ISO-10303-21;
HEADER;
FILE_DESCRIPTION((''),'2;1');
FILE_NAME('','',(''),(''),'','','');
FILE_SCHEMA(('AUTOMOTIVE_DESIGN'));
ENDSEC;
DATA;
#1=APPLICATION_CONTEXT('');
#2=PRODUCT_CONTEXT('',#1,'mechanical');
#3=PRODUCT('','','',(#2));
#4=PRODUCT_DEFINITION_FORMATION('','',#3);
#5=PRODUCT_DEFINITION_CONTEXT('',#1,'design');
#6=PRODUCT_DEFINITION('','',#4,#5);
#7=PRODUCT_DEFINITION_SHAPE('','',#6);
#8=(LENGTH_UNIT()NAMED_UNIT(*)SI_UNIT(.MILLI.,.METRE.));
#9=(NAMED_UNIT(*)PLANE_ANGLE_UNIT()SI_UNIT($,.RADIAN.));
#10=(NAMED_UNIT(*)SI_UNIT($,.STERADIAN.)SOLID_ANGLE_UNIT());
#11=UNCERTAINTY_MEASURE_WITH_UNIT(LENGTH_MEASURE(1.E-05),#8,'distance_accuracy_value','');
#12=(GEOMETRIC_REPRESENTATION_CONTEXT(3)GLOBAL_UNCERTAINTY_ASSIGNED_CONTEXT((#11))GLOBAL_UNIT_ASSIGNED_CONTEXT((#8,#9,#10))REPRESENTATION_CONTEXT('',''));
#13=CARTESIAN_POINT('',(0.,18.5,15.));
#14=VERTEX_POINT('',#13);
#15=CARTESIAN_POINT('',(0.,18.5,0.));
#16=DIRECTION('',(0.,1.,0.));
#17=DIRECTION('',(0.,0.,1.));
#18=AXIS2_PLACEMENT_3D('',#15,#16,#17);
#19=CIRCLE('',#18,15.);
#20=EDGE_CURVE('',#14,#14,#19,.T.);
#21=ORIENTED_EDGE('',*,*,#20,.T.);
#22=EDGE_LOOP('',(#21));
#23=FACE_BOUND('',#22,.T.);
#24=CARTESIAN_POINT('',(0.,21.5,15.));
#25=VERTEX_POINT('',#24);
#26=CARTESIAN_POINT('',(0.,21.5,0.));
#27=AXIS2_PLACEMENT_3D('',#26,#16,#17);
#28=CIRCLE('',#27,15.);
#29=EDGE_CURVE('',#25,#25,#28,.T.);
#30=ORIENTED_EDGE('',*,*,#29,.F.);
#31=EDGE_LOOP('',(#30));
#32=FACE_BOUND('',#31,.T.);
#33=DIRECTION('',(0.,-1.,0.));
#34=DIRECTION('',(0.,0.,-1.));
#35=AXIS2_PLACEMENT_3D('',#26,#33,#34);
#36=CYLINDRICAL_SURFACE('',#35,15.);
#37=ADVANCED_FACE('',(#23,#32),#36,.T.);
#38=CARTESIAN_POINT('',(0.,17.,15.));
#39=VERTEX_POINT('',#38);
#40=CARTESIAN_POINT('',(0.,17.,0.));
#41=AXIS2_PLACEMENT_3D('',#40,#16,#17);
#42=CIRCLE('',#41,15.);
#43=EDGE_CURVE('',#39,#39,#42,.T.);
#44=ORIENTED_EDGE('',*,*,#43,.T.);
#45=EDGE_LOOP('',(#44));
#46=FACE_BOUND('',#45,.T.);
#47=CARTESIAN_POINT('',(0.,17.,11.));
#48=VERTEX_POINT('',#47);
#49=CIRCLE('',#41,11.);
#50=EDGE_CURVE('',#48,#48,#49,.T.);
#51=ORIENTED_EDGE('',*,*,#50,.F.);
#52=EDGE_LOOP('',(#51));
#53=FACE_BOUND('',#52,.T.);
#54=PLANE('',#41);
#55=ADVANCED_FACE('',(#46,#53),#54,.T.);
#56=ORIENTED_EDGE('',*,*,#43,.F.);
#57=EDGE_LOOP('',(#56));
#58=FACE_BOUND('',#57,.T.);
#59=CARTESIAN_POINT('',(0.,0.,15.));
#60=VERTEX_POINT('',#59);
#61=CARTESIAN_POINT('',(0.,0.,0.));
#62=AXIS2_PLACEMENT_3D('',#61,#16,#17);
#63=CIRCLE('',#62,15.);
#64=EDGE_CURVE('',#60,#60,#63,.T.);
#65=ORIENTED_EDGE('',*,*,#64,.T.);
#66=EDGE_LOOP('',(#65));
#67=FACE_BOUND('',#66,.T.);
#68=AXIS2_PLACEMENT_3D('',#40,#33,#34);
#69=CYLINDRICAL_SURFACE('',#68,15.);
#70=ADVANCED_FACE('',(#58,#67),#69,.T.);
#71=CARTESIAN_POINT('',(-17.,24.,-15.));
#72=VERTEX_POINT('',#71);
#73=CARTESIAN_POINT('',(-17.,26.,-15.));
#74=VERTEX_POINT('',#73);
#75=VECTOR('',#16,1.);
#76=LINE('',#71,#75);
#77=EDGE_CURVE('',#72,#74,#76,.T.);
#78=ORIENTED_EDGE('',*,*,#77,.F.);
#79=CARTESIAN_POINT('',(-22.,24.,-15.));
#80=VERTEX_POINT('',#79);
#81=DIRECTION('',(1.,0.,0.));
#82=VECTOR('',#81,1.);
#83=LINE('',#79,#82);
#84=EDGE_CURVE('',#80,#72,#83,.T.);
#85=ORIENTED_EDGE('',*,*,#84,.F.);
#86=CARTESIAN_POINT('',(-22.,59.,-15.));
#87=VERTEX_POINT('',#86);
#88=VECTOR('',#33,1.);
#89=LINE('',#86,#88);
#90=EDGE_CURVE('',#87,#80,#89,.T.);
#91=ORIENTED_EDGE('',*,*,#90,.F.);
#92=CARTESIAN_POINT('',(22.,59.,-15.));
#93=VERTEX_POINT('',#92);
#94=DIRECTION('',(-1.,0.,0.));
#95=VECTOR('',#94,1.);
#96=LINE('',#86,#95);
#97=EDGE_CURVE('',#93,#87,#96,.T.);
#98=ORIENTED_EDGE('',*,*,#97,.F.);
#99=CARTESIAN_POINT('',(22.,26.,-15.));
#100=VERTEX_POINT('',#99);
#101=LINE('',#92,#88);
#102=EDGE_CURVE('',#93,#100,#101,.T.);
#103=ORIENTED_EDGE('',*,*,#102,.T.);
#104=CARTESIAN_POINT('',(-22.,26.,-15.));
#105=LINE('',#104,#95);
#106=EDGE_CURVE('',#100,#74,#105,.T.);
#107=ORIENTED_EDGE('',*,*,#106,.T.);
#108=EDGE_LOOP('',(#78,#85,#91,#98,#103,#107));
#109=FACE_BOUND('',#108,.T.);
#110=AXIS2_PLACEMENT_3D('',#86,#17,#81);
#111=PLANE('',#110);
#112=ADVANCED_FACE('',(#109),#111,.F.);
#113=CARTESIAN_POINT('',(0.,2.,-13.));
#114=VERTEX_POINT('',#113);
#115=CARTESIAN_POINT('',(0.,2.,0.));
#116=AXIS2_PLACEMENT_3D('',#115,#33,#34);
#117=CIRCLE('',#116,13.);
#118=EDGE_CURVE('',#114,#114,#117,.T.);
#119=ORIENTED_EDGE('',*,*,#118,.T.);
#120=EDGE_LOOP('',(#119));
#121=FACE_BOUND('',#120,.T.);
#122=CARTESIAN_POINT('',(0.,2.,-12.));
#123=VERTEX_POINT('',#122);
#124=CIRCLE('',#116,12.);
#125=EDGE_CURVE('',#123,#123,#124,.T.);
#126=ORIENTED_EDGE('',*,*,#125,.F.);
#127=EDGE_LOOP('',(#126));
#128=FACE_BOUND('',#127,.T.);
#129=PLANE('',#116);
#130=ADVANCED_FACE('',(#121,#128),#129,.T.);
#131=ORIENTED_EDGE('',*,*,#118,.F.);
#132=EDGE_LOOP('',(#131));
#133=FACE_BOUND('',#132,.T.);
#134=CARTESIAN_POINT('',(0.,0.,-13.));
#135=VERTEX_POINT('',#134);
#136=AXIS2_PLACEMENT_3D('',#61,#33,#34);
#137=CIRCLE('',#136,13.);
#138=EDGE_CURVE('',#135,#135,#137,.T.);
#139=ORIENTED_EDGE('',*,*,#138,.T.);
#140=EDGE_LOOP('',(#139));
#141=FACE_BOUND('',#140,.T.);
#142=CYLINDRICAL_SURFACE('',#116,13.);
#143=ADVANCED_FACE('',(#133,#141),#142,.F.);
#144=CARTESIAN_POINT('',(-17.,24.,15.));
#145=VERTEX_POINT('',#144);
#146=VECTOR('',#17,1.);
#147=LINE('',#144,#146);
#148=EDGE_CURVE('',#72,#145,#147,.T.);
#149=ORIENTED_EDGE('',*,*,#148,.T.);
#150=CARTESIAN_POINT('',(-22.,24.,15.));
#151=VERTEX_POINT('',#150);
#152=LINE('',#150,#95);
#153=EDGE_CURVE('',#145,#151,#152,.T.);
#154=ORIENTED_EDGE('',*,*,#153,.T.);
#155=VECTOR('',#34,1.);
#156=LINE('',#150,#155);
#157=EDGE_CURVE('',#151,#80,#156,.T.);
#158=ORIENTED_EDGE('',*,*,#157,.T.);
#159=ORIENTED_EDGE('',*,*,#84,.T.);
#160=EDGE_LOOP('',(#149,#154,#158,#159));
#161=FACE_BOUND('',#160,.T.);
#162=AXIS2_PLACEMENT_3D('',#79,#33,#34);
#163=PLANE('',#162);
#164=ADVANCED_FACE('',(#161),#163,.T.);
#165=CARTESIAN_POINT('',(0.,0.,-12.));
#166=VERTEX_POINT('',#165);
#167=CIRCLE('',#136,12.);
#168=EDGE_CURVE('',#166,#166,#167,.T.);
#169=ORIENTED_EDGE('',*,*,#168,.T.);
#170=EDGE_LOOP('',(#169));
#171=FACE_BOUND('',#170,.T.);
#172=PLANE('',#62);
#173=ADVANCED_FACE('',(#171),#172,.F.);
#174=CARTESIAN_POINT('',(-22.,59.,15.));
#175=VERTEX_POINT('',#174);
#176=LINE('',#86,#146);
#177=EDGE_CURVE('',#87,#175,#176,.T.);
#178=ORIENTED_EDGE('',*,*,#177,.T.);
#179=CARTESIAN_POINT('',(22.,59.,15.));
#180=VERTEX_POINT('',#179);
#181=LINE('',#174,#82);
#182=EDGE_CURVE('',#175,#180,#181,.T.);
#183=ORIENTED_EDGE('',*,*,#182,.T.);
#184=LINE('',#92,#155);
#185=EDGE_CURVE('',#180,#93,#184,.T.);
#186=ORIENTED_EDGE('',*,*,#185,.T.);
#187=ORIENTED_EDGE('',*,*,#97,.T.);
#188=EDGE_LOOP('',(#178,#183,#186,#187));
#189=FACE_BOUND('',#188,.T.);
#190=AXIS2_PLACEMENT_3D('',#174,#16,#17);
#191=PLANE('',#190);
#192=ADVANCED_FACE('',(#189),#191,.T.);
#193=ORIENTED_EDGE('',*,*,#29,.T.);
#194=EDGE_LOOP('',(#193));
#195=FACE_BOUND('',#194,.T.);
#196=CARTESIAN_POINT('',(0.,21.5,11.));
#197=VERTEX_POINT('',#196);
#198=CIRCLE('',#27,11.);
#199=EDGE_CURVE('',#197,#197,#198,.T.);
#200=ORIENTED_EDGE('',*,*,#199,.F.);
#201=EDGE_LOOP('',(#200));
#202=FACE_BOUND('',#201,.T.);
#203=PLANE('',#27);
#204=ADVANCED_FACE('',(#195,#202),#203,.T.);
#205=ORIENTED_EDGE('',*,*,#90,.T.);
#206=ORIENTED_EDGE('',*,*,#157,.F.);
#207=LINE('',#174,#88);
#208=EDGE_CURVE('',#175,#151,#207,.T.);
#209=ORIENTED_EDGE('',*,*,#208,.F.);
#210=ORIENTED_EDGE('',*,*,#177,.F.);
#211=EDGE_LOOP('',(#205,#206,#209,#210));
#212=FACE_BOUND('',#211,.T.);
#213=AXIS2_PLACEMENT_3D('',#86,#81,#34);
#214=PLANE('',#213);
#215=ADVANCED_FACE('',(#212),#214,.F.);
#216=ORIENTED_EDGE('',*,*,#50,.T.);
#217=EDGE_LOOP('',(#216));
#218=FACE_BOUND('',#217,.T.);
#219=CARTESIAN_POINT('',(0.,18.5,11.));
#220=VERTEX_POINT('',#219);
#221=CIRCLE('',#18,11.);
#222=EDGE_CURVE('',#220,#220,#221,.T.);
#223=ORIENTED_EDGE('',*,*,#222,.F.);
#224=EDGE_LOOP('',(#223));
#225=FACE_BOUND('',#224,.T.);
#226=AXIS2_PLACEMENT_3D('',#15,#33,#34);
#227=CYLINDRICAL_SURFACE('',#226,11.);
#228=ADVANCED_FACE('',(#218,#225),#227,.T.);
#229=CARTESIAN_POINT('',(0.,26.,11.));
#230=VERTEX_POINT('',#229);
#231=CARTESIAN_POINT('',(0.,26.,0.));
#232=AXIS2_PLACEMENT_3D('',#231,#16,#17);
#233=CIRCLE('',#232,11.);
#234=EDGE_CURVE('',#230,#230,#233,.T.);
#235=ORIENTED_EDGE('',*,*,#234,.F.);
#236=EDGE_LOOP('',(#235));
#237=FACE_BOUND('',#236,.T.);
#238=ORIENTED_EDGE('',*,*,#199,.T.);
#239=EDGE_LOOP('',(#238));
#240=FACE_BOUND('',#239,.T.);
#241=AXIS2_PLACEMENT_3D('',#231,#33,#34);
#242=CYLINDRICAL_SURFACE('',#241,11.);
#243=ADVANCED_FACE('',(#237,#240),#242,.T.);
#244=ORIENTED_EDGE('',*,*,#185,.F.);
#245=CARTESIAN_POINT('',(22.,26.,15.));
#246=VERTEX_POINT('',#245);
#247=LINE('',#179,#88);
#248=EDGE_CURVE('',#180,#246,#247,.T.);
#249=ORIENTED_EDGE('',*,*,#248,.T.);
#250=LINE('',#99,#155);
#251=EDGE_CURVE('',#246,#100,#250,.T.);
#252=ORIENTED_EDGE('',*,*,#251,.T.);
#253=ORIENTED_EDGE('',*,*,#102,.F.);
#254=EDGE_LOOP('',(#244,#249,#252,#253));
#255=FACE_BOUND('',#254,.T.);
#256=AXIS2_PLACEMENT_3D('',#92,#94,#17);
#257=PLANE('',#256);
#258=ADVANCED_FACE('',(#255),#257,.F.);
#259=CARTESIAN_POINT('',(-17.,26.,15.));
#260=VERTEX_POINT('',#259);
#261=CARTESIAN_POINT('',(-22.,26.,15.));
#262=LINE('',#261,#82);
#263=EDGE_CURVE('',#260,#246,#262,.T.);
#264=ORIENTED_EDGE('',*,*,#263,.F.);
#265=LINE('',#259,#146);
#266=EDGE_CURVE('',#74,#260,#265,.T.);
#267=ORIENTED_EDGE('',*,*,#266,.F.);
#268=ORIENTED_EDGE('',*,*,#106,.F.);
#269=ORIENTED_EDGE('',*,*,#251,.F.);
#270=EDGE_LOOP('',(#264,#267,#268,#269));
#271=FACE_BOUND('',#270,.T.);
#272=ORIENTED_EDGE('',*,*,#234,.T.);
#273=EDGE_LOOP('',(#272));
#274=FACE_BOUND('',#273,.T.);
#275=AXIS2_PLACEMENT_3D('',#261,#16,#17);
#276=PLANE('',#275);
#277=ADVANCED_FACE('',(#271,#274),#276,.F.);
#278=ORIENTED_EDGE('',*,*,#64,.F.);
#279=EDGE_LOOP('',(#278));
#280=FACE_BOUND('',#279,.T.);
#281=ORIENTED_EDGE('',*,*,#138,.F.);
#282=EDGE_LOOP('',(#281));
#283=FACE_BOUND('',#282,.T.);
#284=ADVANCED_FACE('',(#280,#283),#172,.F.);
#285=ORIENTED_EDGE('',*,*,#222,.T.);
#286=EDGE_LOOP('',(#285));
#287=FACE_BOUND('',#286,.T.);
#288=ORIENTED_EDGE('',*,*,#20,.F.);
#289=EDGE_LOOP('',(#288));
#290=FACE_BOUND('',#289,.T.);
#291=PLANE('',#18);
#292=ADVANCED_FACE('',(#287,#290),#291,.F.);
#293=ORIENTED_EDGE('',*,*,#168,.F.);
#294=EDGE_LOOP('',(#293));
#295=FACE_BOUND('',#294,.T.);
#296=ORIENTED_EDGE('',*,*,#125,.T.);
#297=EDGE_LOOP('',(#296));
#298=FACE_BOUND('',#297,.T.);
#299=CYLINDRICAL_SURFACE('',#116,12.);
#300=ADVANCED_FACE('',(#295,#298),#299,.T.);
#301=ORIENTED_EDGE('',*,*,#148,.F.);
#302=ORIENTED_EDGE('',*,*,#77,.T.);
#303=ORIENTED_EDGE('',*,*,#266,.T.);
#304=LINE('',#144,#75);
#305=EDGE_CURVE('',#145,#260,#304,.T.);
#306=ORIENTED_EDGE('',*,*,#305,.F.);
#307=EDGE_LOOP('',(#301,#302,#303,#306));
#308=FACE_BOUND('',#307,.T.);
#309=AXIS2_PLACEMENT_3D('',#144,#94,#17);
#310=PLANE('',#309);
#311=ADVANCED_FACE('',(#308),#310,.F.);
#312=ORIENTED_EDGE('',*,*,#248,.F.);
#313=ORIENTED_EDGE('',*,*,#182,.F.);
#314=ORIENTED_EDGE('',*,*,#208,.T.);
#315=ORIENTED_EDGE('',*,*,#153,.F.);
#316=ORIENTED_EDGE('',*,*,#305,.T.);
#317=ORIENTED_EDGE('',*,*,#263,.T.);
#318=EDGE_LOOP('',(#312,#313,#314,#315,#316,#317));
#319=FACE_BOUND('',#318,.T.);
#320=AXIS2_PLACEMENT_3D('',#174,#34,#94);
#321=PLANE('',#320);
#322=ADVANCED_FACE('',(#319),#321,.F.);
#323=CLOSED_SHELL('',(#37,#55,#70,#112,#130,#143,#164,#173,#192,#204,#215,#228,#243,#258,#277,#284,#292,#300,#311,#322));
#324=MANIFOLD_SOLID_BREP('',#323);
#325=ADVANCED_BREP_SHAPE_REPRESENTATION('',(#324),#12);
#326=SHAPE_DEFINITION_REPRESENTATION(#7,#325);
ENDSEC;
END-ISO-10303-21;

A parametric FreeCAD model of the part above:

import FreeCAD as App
import Part
import Sketcher


def add_polygon(sketch, points):
    """Adds a closed chain of lines whose ends are joined by coincident constraints."""
    first, n = sketch.GeometryCount, len(points)
    for a, b in zip(points, points[1:] + points[:1]):
        sketch.addGeometry(Part.LineSegment(App.Vector(*a, 0), App.Vector(*b, 0)), False)
    for i in range(n):
        sketch.addConstraint(Sketcher.Constraint("Coincident", first + i, 2, first + (i + 1) % n, 1))

doc = App.newDocument("Part")
body = doc.addObject("PartDesign::Body", "Body")

# Sketch on XZ plane
sketch1 = body.newObject("Sketcher::SketchObject", "Sketch")
sketch1.AttachmentSupport = (doc.getObject("XZ_Plane"), [""])
sketch1.MapMode = "FlatFace"
sketch1.addGeometry(Part.Circle(App.Vector(0, 0, 0), App.Vector(0, 0, 1), 15), False)
sketch1.addConstraint(Sketcher.Constraint("Coincident", 0, 3, -1, 1))
sketch1.addConstraint(Sketcher.Constraint("Diameter", 0, 30.0))
pad1 = body.newObject("PartDesign::Pad", "Pad")
pad1.Profile = sketch1
pad1.Length = 17
pad1.Reversed = True

# Sketch on XZ plane
sketch2 = body.newObject("Sketcher::SketchObject", "Sketch001")
sketch2.AttachmentSupport = (doc.getObject("XZ_Plane"), [""])
sketch2.MapMode = "FlatFace"
sketch2.AttachmentOffset = App.Placement(App.Vector(0, 0, -17), App.Rotation())
sketch2.addGeometry(Part.Circle(App.Vector(0, 0, 0), App.Vector(0, 0, 1), 11), False)
sketch2.addConstraint(Sketcher.Constraint("Coincident", 0, 3, -1, 1))
sketch2.addConstraint(Sketcher.Constraint("Diameter", 0, 22.0))
pad2 = body.newObject("PartDesign::Pad", "Pad001")
pad2.Profile = sketch2
pad2.Length = 1.5
pad2.Reversed = True

# Sketch on XZ plane
sketch3 = body.newObject("Sketcher::SketchObject", "Sketch002")
sketch3.AttachmentSupport = (doc.getObject("XZ_Plane"), [""])
sketch3.MapMode = "FlatFace"
sketch3.AttachmentOffset = App.Placement(App.Vector(0, 0, -18.5), App.Rotation())
sketch3.addGeometry(Part.Circle(App.Vector(0, 0, 0), App.Vector(0, 0, 1), 15), False)
sketch3.addConstraint(Sketcher.Constraint("Coincident", 0, 3, -1, 1))
sketch3.addConstraint(Sketcher.Constraint("Diameter", 0, 30.0))
pad3 = body.newObject("PartDesign::Pad", "Pad002")
pad3.Profile = sketch3
pad3.Length = 3
pad3.Reversed = True

# Sketch on XZ plane
sketch4 = body.newObject("Sketcher::SketchObject", "Sketch003")
sketch4.AttachmentSupport = (doc.getObject("XZ_Plane"), [""])
sketch4.MapMode = "FlatFace"
sketch4.AttachmentOffset = App.Placement(App.Vector(0, 0, -21.5), App.Rotation())
sketch4.addGeometry(Part.Circle(App.Vector(0, 0, 0), App.Vector(0, 0, 1), 11), False)
sketch4.addConstraint(Sketcher.Constraint("Coincident", 0, 3, -1, 1))
sketch4.addConstraint(Sketcher.Constraint("Diameter", 0, 22.0))
pad4 = body.newObject("PartDesign::Pad", "Pad003")
pad4.Profile = sketch4
pad4.Length = 4.5
pad4.Reversed = True

# Sketch on XZ plane
sketch5 = body.newObject("Sketcher::SketchObject", "Sketch004")
sketch5.AttachmentSupport = (doc.getObject("XZ_Plane"), [""])
sketch5.MapMode = "FlatFace"
sketch5.AttachmentOffset = App.Placement(App.Vector(0, 0, -26), App.Rotation())
add_polygon(sketch5, [(-22, -15), (-22, 15), (22, 15), (22, -15)])  # lines 0-3
sketch5.addConstraint(Sketcher.Constraint("Vertical", 0))
sketch5.addConstraint(Sketcher.Constraint("Horizontal", 1))
sketch5.addConstraint(Sketcher.Constraint("Vertical", 2))
sketch5.addConstraint(Sketcher.Constraint("Horizontal", 3))
sketch5.addConstraint(Sketcher.Constraint("Symmetric", 0, 2, 2, 2, -1, 1))
sketch5.addConstraint(Sketcher.Constraint("DistanceX", 1, 1, 1, 2, 44.0))
sketch5.addConstraint(Sketcher.Constraint("DistanceY", 0, 1, 0, 2, 30.0))
pad5 = body.newObject("PartDesign::Pad", "Pad004")
pad5.Profile = sketch5
pad5.Length = 33
pad5.Reversed = True

# Sketch on XZ plane
sketch6 = body.newObject("Sketcher::SketchObject", "Sketch005")
sketch6.AttachmentSupport = (doc.getObject("XZ_Plane"), [""])
sketch6.MapMode = "FlatFace"
sketch6.AttachmentOffset = App.Placement(App.Vector(0, 0, -26), App.Rotation())
add_polygon(sketch6, [(-22, 15), (-22, -15), (-17, -15), (-17, 15)])  # lines 0-3
sketch6.addConstraint(Sketcher.Constraint("Vertical", 0))
sketch6.addConstraint(Sketcher.Constraint("Horizontal", 1))
sketch6.addConstraint(Sketcher.Constraint("Vertical", 2))
sketch6.addConstraint(Sketcher.Constraint("Horizontal", 3))
sketch6.addConstraint(Sketcher.Constraint("DistanceX", 1, 1, 1, 2, 5.0))
sketch6.addConstraint(Sketcher.Constraint("DistanceY", 0, 2, 0, 1, 30.0))
sketch6.addConstraint(Sketcher.Constraint("DistanceX", 0, 2, -1, 1, 22.0))
sketch6.addConstraint(Sketcher.Constraint("DistanceY", 0, 2, -1, 1, 15.0))
pad6 = body.newObject("PartDesign::Pad", "Pad005")
pad6.Profile = sketch6
pad6.Length = 2

# Sketch on XZ plane
sketch7 = body.newObject("Sketcher::SketchObject", "Sketch006")
sketch7.AttachmentSupport = (doc.getObject("XZ_Plane"), [""])
sketch7.MapMode = "FlatFace"
sketch7.addGeometry(Part.Circle(App.Vector(0, 0, 0), App.Vector(0, 0, 1), 13), False)
sketch7.addGeometry(Part.Circle(App.Vector(0, 0, 0), App.Vector(0, 0, 1), 12), False)
sketch7.addConstraint(Sketcher.Constraint("Coincident", 0, 3, -1, 1))
sketch7.addConstraint(Sketcher.Constraint("Coincident", 1, 3, -1, 1))
sketch7.addConstraint(Sketcher.Constraint("Diameter", 0, 26.0))
sketch7.addConstraint(Sketcher.Constraint("Diameter", 1, 24.0))
pocket1 = body.newObject("PartDesign::Pocket", "Pocket")
pocket1.Profile = sketch7
pocket1.Length = 2

doc.recompute()
